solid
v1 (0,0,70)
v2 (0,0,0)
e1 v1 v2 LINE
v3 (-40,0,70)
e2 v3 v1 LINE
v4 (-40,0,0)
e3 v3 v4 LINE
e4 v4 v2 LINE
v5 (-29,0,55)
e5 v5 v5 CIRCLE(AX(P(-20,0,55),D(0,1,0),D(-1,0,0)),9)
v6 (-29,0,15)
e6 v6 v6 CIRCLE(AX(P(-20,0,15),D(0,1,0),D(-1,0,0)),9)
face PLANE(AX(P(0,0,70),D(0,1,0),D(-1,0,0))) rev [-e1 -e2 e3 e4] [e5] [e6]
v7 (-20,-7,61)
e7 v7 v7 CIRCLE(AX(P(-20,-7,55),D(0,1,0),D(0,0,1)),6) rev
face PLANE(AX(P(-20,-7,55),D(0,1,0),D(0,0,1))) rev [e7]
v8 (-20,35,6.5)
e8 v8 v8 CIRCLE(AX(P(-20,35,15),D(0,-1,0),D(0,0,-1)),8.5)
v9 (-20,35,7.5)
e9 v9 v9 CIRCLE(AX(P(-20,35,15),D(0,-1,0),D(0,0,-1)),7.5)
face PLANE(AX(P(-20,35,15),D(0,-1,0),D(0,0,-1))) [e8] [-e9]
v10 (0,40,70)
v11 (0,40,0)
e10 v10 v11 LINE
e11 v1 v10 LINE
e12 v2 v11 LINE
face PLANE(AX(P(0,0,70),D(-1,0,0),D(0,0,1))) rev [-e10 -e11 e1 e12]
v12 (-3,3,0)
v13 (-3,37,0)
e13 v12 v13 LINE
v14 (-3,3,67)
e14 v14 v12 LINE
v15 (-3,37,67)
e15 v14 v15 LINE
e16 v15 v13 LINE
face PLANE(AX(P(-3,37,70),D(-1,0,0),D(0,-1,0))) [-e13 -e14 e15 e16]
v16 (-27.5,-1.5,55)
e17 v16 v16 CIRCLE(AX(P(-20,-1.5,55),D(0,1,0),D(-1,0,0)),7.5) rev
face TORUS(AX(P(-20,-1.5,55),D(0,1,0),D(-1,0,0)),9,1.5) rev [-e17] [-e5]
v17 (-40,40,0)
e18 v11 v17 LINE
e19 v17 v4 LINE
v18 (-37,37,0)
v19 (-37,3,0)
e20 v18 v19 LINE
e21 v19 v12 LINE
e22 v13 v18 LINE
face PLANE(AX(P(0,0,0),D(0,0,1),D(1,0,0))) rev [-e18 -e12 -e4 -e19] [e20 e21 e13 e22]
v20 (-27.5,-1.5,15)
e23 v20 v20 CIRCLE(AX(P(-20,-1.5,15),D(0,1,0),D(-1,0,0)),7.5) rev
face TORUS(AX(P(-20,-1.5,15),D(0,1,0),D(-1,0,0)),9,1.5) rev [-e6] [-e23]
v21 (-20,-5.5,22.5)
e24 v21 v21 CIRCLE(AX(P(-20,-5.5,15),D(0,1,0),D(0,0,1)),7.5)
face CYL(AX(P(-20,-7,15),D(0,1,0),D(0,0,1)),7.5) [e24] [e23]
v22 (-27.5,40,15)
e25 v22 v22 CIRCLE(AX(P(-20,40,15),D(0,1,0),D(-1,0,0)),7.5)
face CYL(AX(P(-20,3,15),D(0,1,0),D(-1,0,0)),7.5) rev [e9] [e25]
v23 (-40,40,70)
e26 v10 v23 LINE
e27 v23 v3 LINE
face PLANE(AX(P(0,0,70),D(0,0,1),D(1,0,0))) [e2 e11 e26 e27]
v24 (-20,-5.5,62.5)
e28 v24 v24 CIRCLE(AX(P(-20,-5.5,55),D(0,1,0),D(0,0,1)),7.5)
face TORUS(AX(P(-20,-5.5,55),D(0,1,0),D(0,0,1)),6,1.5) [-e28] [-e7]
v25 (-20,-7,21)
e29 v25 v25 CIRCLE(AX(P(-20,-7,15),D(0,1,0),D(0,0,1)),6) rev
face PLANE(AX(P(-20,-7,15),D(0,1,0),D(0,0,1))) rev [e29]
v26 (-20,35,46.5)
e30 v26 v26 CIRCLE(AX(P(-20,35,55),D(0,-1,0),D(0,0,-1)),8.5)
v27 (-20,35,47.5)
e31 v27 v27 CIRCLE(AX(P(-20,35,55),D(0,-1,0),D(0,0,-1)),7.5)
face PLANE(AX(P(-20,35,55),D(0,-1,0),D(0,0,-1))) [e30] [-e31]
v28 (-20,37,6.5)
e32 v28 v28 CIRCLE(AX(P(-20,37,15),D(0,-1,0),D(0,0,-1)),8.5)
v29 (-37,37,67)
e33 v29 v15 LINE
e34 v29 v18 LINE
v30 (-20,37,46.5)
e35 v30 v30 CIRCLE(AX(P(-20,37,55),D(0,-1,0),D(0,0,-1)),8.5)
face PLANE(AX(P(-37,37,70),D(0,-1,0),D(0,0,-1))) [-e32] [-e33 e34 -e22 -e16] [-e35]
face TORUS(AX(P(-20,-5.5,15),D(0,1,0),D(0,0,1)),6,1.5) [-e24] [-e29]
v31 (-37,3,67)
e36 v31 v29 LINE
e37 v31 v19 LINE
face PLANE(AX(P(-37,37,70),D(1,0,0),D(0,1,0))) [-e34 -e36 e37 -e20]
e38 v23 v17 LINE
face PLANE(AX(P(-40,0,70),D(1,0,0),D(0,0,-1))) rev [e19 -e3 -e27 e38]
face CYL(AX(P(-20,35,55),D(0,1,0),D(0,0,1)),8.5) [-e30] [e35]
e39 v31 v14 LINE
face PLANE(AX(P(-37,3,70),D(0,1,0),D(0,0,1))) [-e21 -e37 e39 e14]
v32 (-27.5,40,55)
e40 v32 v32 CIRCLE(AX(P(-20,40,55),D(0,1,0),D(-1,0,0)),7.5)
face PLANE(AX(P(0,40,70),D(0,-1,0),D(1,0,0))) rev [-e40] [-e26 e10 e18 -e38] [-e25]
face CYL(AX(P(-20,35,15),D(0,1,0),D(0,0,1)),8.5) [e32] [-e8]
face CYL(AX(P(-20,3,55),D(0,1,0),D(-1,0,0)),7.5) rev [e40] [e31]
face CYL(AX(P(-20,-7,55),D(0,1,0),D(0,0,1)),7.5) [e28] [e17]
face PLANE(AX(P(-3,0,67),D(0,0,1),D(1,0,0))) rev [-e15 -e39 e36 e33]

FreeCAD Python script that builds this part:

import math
import FreeCAD as App
import Part
import Sketcher

V = App.Vector


def edges_at(feature, points):
    """Names of the edges that pass closest to the given points."""
    edges = feature.Shape.Edges
    near = lambda p: min(range(len(edges)), key=lambda i: edges[i].distToShape(Part.Vertex(*p))[0])
    return sorted({f"Edge{near(p) + 1}" for p in points})

doc = App.newDocument("Part")
params = doc.addObject("Spreadsheet::Sheet", "Params")
for row, (alias, value) in enumerate([
    ("sketch1_width", "40 mm"),
    ("sketch1_width2", "34 mm"),
    ("pad1_length", "70 mm"),
    ("sketch2_width", "34 mm"),
    ("sketch2_height", "3 mm"),
    ("pad2_length", "37 mm"),
    ("sketch3_radius", "7.5 mm"),
    ("pocket1_length", "37 mm"),
    ("sketch4_diameter", "17 mm"),
    ("sketch4_diameter2", "15 mm"),
    ("pad3_length", "2 mm"),
    ("sketch5_diameter", "15 mm"),
    ("pad4_length", "10 mm"),
    ("fillet_radius", "1.5 mm"),
    ("fillet2_radius", "1.5 mm"),
    ("fillet3_radius", "1.5 mm"),
    ("fillet4_radius", "1.5 mm"),
], start=1):
    params.set(f"A{row}", alias)
    params.set(f"B{row}", "=" + value)
    params.setAlias(f"B{row}", alias)

body = doc.addObject("PartDesign::Body", "Body")

# Sketch on XY plane
sketch1 = body.newObject("Sketcher::SketchObject", "Sketch")
sketch1.AttachmentSupport = (doc.getObject("XY_Plane"), [""])
sketch1.MapMode = "FlatFace"
sketch1.addGeometry([
    Part.LineSegment(V(-40, 40, 0), V(-40, 0, 0)),  # 0
    Part.LineSegment(V(-40, 0, 0), V(0, 0, 0)),  # 1
    Part.LineSegment(V(0, 0, 0), V(0, 40, 0)),  # 2
    Part.LineSegment(V(0, 40, 0), V(-40, 40, 0)),  # 3
    Part.LineSegment(V(-3, 3, 0), V(-37, 3, 0)),  # 4
    Part.LineSegment(V(-37, 3, 0), V(-37, 37, 0)),  # 5
    Part.LineSegment(V(-37, 37, 0), V(-3, 37, 0)),  # 6
    Part.LineSegment(V(-3, 37, 0), V(-3, 3, 0)),  # 7
], False)
sketch1.addConstraint([
    Sketcher.Constraint("Coincident", 0, 2, 1, 1),
    Sketcher.Constraint("Coincident", 1, 2, 2, 1),
    Sketcher.Constraint("Coincident", 2, 2, 3, 1),
    Sketcher.Constraint("Coincident", 3, 2, 0, 1),
    Sketcher.Constraint("Coincident", 4, 2, 5, 1),
    Sketcher.Constraint("Coincident", 5, 2, 6, 1),
    Sketcher.Constraint("Coincident", 6, 2, 7, 1),
    Sketcher.Constraint("Coincident", 7, 2, 4, 1),
    Sketcher.Constraint("Vertical", 0),
    Sketcher.Constraint("Horizontal", 1),
    Sketcher.Constraint("Vertical", 2),
    Sketcher.Constraint("Horizontal", 3),
    Sketcher.Constraint("Horizontal", 4),
    Sketcher.Constraint("Vertical", 5),
    Sketcher.Constraint("Horizontal", 6),
    Sketcher.Constraint("Vertical", 7),
    Sketcher.Constraint("Coincident", 1, 2, -1, 1),
    Sketcher.Constraint("Equal", 3, 0),
    Sketcher.Constraint("Equal", 6, 5),
    Sketcher.Constraint("DistanceX", 1, 1, 1, 2, 40.0),
    Sketcher.Constraint("DistanceX", 4, 2, 4, 1, 34.0),
    Sketcher.Constraint("DistanceX", 4, 2, -1, 1, 37.0),
    Sketcher.Constraint("DistanceY", -1, 1, 4, 2, 3.0),
])
sketch1.setExpression("Constraints[19]", "Params.sketch1_width")
sketch1.setExpression("Constraints[20]", "Params.sketch1_width2")
pad1 = body.newObject("PartDesign::Pad", "Pad")
pad1.Profile = sketch1
pad1.setExpression("Length", "Params.pad1_length")

# Sketch on XZ plane
sketch2 = body.newObject("Sketcher::SketchObject", "Sketch001")
sketch2.AttachmentSupport = (doc.getObject("XZ_Plane"), [""])
sketch2.MapMode = "FlatFace"
sketch2.AttachmentOffset = App.Placement(V(0, 0, -37), App.Rotation())
sketch2.addGeometry([
    Part.LineSegment(V(-3, 67, 0), V(-3, 70, 0)),
    Part.LineSegment(V(-3, 70, 0), V(-37, 70, 0)),
    Part.LineSegment(V(-37, 70, 0), V(-37, 67, 0)),
    Part.LineSegment(V(-37, 67, 0), V(-3, 67, 0)),
], False)
sketch2.addConstraint([
    Sketcher.Constraint("Coincident", 0, 2, 1, 1),
    Sketcher.Constraint("Coincident", 1, 2, 2, 1),
    Sketcher.Constraint("Coincident", 2, 2, 3, 1),
    Sketcher.Constraint("Coincident", 3, 2, 0, 1),
    Sketcher.Constraint("Vertical", 0),
    Sketcher.Constraint("Horizontal", 1),
    Sketcher.Constraint("Vertical", 2),
    Sketcher.Constraint("Horizontal", 3),
    Sketcher.Constraint("DistanceX", 1, 2, 1, 1, 34.0),
    Sketcher.Constraint("DistanceY", 0, 1, 0, 2, 3.0),
    Sketcher.Constraint("DistanceX", 0, 2, -1, 1, 3.0),
    Sketcher.Constraint("DistanceY", -1, 1, 0, 2, 70.0),
])
sketch2.setExpression("Constraints[8]", "Params.sketch2_width")
sketch2.setExpression("Constraints[9]", "Params.sketch2_height")
pad2 = body.newObject("PartDesign::Pad", "Pad001")
pad2.Profile = sketch2
pad2.setExpression("Length", "Params.pad2_length")

# Sketch on XZ plane
sketch3 = body.newObject("Sketcher::SketchObject", "Sketch002")
sketch3.AttachmentSupport = (doc.getObject("XZ_Plane"), [""])
sketch3.MapMode = "FlatFace"
sketch3.AttachmentOffset = App.Placement(V(0, 0, -40), App.Rotation())
sketch3.addGeometry([
    Part.ArcOfCircle(Part.Circle(V(-20, 15, 0), V(0, 0, 1), 8), math.radians(180), math.radians(270)),  # 0
    Part.ArcOfCircle(Part.Circle(V(-20, 15, 0), V(0, 0, 1), 8), math.radians(90), math.radians(180)),  # 1
    Part.ArcOfCircle(Part.Circle(V(-20, 15, 0), V(0, 0, 1), 8), math.radians(0), math.radians(90)),  # 2
    Part.ArcOfCircle(Part.Circle(V(-20, 15, 0), V(0, 0, 1), 8), math.radians(-90), math.radians(0)),  # 3
    Part.ArcOfCircle(Part.Circle(V(-20, 55, 0), V(0, 0, 1), 8), math.radians(180), math.radians(270)),  # 4
    Part.ArcOfCircle(Part.Circle(V(-20, 55, 0), V(0, 0, 1), 8), math.radians(90), math.radians(180)),  # 5
    Part.ArcOfCircle(Part.Circle(V(-20, 55, 0), V(0, 0, 1), 8), math.radians(0), math.radians(90)),  # 6
    Part.ArcOfCircle(Part.Circle(V(-20, 55, 0), V(0, 0, 1), 8), math.radians(-90), math.radians(0)),  # 7
], False)
sketch3.addConstraint([
    Sketcher.Constraint("Tangent", 0, 1, 1, 2),
    Sketcher.Constraint("Tangent", 1, 1, 2, 2),
    Sketcher.Constraint("Tangent", 2, 1, 3, 2),
    Sketcher.Constraint("Tangent", 3, 1, 0, 2),
    Sketcher.Constraint("Tangent", 4, 1, 5, 2),
    Sketcher.Constraint("Tangent", 5, 1, 6, 2),
    Sketcher.Constraint("Tangent", 6, 1, 7, 2),
    Sketcher.Constraint("Tangent", 7, 1, 4, 2),
    Sketcher.Constraint("Equal", 0, 1),
    Sketcher.Constraint("Equal", 3, 4),
    Sketcher.Constraint("Equal", 4, 5),
    Sketcher.Constraint("Horizontal", 3, 3, 0, 1),
    Sketcher.Constraint("Horizontal", 0, 1, 2, 1),
    Sketcher.Constraint("Horizontal", 7, 3, 4, 1),
    Sketcher.Constraint("Horizontal", 4, 1, 6, 1),
    Sketcher.Constraint("Vertical", 3, 3, 4, 3),
    Sketcher.Constraint("Vertical", 7, 3, 1, 1),
    Sketcher.Constraint("Vertical", 1, 1, 3, 1),
    Sketcher.Constraint("Vertical", 3, 1, 5, 1),
    Sketcher.Constraint("Vertical", 5, 1, 7, 1),
    Sketcher.Constraint("Radius", 0, 7.5),
    Sketcher.Constraint("DistanceX", 0, 3, -1, 1, 20.0),
    Sketcher.Constraint("DistanceY", -1, 1, 0, 3, 15.0),
    Sketcher.Constraint("DistanceY", -1, 1, 4, 3, 55.0),
])
sketch3.setExpression("Constraints[20]", "Params.sketch3_radius")
pocket1 = body.newObject("PartDesign::Pocket", "Pocket")
pocket1.Profile = sketch3
pocket1.setExpression("Length", "Params.pocket1_length")
pocket1.Reversed = True

# Sketch on XZ plane
sketch4 = body.newObject("Sketcher::SketchObject", "Sketch003")
sketch4.AttachmentSupport = (doc.getObject("XZ_Plane"), [""])
sketch4.MapMode = "FlatFace"
sketch4.AttachmentOffset = App.Placement(V(0, 0, -37), App.Rotation())
sketch4.addGeometry([
    Part.Circle(V(-20, 15, 0), V(0, 0, 1), 8),
    Part.Circle(V(-20, 15, 0), V(0, 0, 1), 8),
    Part.Circle(V(-20, 55, 0), V(0, 0, 1), 8),
    Part.Circle(V(-20, 55, 0), V(0, 0, 1), 8),
], False)
sketch4.addConstraint([
    Sketcher.Constraint("Coincident", 1, 3, 0, 3),
    Sketcher.Constraint("Coincident", 3, 3, 2, 3),
    Sketcher.Constraint("Equal", 0, 2),
    Sketcher.Constraint("Equal", 1, 3),
    Sketcher.Constraint("Vertical", 1, 3, 2, 3),
    Sketcher.Constraint("Diameter", 0, 17.0),
    Sketcher.Constraint("Diameter", 1, 15.0),
    Sketcher.Constraint("DistanceX", 0, 3, -1, 1, 20.0),
    Sketcher.Constraint("DistanceY", -1, 1, 0, 3, 15.0),
    Sketcher.Constraint("DistanceY", -1, 1, 2, 3, 55.0),
])
sketch4.setExpression("Constraints[5]", "Params.sketch4_diameter")
sketch4.setExpression("Constraints[6]", "Params.sketch4_diameter2")
pad3 = body.newObject("PartDesign::Pad", "Pad002")
pad3.Profile = sketch4
pad3.setExpression("Length", "Params.pad3_length")

# Sketch on XZ plane
sketch5 = body.newObject("Sketcher::SketchObject", "Sketch004")
sketch5.AttachmentSupport = (doc.getObject("XZ_Plane"), [""])
sketch5.MapMode = "FlatFace"
sketch5.AttachmentOffset = App.Placement(V(0, 0, -3), App.Rotation())
sketch5.addGeometry([
    Part.Circle(V(-20, 15, 0), V(0, 0, 1), 8),
    Part.Circle(V(-20, 55, 0), V(0, 0, 1), 8),
], False)
sketch5.addConstraint([
    Sketcher.Constraint("Equal", 0, 1),
    Sketcher.Constraint("Vertical", 0, 3, 1, 3),
    Sketcher.Constraint("Diameter", 0, 15.0),
    Sketcher.Constraint("DistanceX", 0, 3, -1, 1, 20.0),
    Sketcher.Constraint("DistanceY", -1, 1, 0, 3, 15.0),
    Sketcher.Constraint("DistanceY", -1, 1, 1, 3, 55.0),
])
sketch5.setExpression("Constraints[2]", "Params.sketch5_diameter")
pad4 = body.newObject("PartDesign::Pad", "Pad003")
pad4.Profile = sketch5
pad4.setExpression("Length", "Params.pad4_length")
doc.recompute()

fillet = body.newObject("PartDesign::Fillet", "Fillet")
fillet.Base = (pad4, edges_at(pad4, [(-27.5, -7, 55)]))
fillet.setExpression("Radius", "Params.fillet_radius")
doc.recompute()

fillet2 = body.newObject("PartDesign::Fillet", "Fillet001")
fillet2.Base = (fillet, edges_at(fillet, [(-27.5, -7, 15)]))
fillet2.setExpression("Radius", "Params.fillet2_radius")
doc.recompute()

fillet3 = body.newObject("PartDesign::Fillet", "Fillet002")
fillet3.Base = (fillet2, edges_at(fillet2, [(-27.5, 0, 15)]))
fillet3.setExpression("Radius", "Params.fillet3_radius")
doc.recompute()

fillet4 = body.newObject("PartDesign::Fillet", "Fillet003")
fillet4.Base = (fillet3, edges_at(fillet3, [(-27.5, 0, 55)]))
fillet4.setExpression("Radius", "Params.fillet4_radius")

doc.recompute()
